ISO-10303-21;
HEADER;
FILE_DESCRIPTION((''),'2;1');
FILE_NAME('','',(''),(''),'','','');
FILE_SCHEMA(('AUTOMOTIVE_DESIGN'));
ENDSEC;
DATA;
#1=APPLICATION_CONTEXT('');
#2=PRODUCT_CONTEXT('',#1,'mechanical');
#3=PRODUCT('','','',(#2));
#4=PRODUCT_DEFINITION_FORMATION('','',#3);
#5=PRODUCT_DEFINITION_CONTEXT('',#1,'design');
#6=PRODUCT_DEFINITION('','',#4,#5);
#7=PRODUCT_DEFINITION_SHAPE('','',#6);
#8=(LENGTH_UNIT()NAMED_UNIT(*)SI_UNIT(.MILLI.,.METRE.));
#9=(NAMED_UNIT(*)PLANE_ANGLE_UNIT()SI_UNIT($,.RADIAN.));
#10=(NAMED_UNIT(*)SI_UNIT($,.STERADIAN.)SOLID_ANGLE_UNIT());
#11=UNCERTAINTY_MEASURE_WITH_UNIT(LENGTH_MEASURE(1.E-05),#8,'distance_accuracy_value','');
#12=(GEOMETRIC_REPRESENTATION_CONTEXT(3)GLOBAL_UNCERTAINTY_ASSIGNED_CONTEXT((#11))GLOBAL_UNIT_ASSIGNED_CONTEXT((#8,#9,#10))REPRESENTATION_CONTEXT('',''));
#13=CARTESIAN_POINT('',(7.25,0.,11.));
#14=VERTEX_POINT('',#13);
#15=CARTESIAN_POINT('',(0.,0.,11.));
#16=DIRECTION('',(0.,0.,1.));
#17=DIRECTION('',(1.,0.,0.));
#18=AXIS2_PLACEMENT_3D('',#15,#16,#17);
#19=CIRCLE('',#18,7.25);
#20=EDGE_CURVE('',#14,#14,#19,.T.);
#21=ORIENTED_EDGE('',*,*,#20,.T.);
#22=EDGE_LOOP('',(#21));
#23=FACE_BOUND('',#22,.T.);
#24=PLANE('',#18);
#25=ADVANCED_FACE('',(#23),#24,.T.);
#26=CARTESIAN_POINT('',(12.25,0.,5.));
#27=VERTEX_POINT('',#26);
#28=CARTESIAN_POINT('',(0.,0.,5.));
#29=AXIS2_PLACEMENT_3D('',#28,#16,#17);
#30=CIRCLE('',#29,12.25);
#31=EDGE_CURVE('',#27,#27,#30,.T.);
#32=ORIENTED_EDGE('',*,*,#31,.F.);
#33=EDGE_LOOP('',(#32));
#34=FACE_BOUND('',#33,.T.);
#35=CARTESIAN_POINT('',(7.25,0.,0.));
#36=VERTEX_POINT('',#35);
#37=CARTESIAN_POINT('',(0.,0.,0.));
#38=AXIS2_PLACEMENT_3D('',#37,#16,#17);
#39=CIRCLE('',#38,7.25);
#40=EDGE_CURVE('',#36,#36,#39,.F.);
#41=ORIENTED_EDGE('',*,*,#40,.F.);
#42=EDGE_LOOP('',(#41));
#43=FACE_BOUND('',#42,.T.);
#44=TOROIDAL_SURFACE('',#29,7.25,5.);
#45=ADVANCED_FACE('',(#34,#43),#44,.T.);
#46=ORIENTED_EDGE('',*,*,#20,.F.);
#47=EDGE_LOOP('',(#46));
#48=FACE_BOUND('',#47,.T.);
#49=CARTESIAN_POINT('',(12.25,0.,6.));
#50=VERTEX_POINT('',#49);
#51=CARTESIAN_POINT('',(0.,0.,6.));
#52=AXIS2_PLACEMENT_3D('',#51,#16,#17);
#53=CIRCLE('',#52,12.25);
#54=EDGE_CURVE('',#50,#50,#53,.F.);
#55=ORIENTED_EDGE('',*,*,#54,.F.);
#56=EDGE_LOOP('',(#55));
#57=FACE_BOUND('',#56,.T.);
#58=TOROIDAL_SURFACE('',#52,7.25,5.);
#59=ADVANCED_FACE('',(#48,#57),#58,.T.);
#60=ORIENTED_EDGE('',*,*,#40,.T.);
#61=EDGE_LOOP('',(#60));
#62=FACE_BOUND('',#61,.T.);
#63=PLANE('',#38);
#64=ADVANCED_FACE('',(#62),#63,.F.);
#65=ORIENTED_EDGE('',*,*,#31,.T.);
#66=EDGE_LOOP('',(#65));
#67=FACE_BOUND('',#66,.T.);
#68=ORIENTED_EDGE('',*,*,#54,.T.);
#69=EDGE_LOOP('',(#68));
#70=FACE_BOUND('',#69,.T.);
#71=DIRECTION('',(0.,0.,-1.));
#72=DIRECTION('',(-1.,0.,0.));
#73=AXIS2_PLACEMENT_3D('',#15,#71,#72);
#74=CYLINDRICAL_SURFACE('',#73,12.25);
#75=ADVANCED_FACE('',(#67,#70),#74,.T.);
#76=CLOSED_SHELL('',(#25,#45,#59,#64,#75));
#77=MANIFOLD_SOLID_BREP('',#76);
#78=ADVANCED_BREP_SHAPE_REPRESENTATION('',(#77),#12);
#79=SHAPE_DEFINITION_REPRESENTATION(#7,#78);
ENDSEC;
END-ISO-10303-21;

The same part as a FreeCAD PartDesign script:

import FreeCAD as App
import Part
import Sketcher
from FreeCAD import Vector


def edges_at(feature, points):
    """Names of the edges that pass closest to the given points."""
    edges = feature.Shape.Edges
    near = lambda p: min(range(len(edges)), key=lambda i: edges[i].distToShape(Part.Vertex(*p))[0])
    return sorted({f"Edge{near(p) + 1}" for p in points})

doc = App.newDocument("Part")
body = doc.addObject("PartDesign::Body", "Body")

# Sketch on XY plane
sketch1 = body.newObject("Sketcher::SketchObject", "Sketch")
sketch1.AttachmentSupport = (doc.getObject("XY_Plane"), [""])
sketch1.MapMode = "FlatFace"
sketch1.addGeometry(Part.Circle(Vector(0, 0, 0), Vector(0, 0, 1), 12.25), False)
sketch1.addConstraint(Sketcher.Constraint("Coincident", 0, 3, -1, 1))
sketch1.addConstraint(Sketcher.Constraint("Diameter", 0, 24.5))
pad1 = body.newObject("PartDesign::Pad", "Pad")
pad1.Profile = sketch1
pad1.Length = 11
doc.recompute()

fillet = body.newObject("PartDesign::Fillet", "Fillet")
fillet.Base = (pad1, edges_at(pad1, [(-12.25, 0, 0), (-12.25, 0, 11)]))
fillet.Radius = 5

doc.recompute()
